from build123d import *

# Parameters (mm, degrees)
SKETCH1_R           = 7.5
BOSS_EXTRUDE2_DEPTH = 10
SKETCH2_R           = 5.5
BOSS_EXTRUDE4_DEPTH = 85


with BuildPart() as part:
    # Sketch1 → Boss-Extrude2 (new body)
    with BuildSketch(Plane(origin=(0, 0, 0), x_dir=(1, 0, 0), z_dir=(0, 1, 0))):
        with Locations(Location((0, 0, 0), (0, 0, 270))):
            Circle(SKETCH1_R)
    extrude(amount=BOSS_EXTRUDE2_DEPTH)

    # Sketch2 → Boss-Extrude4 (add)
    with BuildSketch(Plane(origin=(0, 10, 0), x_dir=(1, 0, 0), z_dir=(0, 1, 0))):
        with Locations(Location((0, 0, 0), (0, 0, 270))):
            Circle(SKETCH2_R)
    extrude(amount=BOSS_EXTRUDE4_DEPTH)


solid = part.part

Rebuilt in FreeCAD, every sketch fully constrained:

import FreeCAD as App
import Part
import Sketcher

doc = App.newDocument("Part")
params = doc.addObject("Spreadsheet::Sheet", "Params")
for row, (alias, value) in enumerate([
    ("sketch1_diameter", "15 mm"),
    ("pad1_length", "10 mm"),
    ("sketch2_diameter", "11 mm"),
    ("pad2_length", "85 mm"),
], start=1):
    params.set(f"A{row}", alias)
    params.set(f"B{row}", "=" + value)
    params.setAlias(f"B{row}", alias)

body = doc.addObject("PartDesign::Body", "Body")

sketch1 = body.newObject("Sketcher::SketchObject", "Sketch")
sketch1.AttachmentSupport = (doc.getObject("XZ_Plane"), [""])
sketch1.MapMode = "FlatFace"
sketch1.addGeometry(Part.Circle(App.Vector(0, 0, 0), App.Vector(0, 0, 1), 8), False)
sketch1.addConstraint(Sketcher.Constraint("Coincident", 0, 3, -1, 1))
sketch1.addConstraint(Sketcher.Constraint("Diameter", 0, 15.0))
sketch1.setExpression("Constraints[1]", "Params.sketch1_diameter")
pad1 = body.newObject("PartDesign::Pad", "Pad")
pad1.Profile = sketch1
pad1.setExpression("Length", "Params.pad1_length")
pad1.Reversed = True

sketch2 = body.newObject("Sketcher::SketchObject", "Sketch001")
sketch2.AttachmentSupport = (doc.getObject("XZ_Plane"), [""])
sketch2.MapMode = "FlatFace"
sketch2.AttachmentOffset = App.Placement(App.Vector(0, 0, -10), App.Rotation())
sketch2.addGeometry(Part.Circle(App.Vector(0, 0, 0), App.Vector(0, 0, 1), 6), False)
sketch2.addConstraint(Sketcher.Constraint("Coincident", 0, 3, -1, 1))
sketch2.addConstraint(Sketcher.Constraint("Diameter", 0, 11.0))
sketch2.setExpression("Constraints[1]", "Params.sketch2_diameter")
pad2 = body.newObject("PartDesign::Pad", "Pad001")
pad2.Profile = sketch2
pad2.setExpression("Length", "Params.pad2_length")
pad2.Reversed = True

doc.recompute()
